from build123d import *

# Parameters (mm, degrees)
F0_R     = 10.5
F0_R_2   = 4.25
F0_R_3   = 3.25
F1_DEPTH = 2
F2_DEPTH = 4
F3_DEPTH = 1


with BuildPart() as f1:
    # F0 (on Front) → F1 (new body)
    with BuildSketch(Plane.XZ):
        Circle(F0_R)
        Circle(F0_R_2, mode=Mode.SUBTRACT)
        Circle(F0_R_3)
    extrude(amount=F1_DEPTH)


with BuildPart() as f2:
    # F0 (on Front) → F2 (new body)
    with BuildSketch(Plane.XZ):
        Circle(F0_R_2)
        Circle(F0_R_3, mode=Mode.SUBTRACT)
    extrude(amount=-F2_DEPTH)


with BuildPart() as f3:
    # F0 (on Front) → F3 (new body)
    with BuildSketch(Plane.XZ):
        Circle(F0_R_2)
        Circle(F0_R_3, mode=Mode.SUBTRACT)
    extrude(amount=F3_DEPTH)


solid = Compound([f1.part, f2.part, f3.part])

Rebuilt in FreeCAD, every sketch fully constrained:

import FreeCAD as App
import Part
import Sketcher

doc = App.newDocument("Part")
params = doc.addObject("Spreadsheet::Sheet", "Params")
for row, (alias, value) in enumerate([
    ("sketch1_diameter", "21 mm"),
    ("sketch1_diameter2", "8.5 mm"),
    ("sketch1_diameter3", "6.5 mm"),
    ("pad1_length", "2 mm"),
    ("sketch2_diameter", "8.5 mm"),
    ("sketch2_diameter2", "6.5 mm"),
    ("pad2_length", "4 mm"),
    ("sketch3_diameter", "8.5 mm"),
    ("sketch3_diameter2", "6.5 mm"),
    ("pad3_length", "1 mm"),
], start=1):
    params.set(f"A{row}", alias)
    params.set(f"B{row}", "=" + value)
    params.setAlias(f"B{row}", alias)

body = doc.addObject("PartDesign::Body", "Body")
body.AllowCompound = True

sketch1 = body.newObject("Sketcher::SketchObject", "Sketch")
sketch1.AttachmentSupport = (doc.getObject("XZ_Plane"), [""])
sketch1.MapMode = "FlatFace"
sketch1.addGeometry(Part.Circle(App.Vector(0, 0, 0), App.Vector(0, 0, 1), 10.5), False)
sketch1.addGeometry(Part.Circle(App.Vector(0, 0, 0), App.Vector(0, 0, 1), 4.2), False)
sketch1.addGeometry(Part.Circle(App.Vector(0, 0, 0), App.Vector(0, 0, 1), 3.2), False)
sketch1.addConstraint(Sketcher.Constraint("Coincident", 0, 3, -1, 1))
sketch1.addConstraint(Sketcher.Constraint("Coincident", 1, 3, -1, 1))
sketch1.addConstraint(Sketcher.Constraint("Coincident", 2, 3, -1, 1))
sketch1.addConstraint(Sketcher.Constraint("Diameter", 0, 21.0))
sketch1.addConstraint(Sketcher.Constraint("Diameter", 1, 8.5))
sketch1.addConstraint(Sketcher.Constraint("Diameter", 2, 6.5))
sketch1.setExpression("Constraints[3]", "Params.sketch1_diameter")
sketch1.setExpression("Constraints[4]", "Params.sketch1_diameter2")
sketch1.setExpression("Constraints[5]", "Params.sketch1_diameter3")
pad1 = body.newObject("PartDesign::Pad", "Pad")
pad1.Profile = sketch1
pad1.setExpression("Length", "Params.pad1_length")
body2 = doc.addObject("PartDesign::Body", "Body001")

sketch2 = body2.newObject("Sketcher::SketchObject", "Sketch001")
sketch2.AttachmentSupport = (doc.getObject("XZ_Plane001"), [""])
sketch2.MapMode = "FlatFace"
sketch2.addGeometry(Part.Circle(App.Vector(0, 0, 0), App.Vector(0, 0, 1), 4.2), False)
sketch2.addGeometry(Part.Circle(App.Vector(0, 0, 0), App.Vector(0, 0, 1), 3.2), False)
sketch2.addConstraint(Sketcher.Constraint("Coincident", 0, 3, -1, 1))
sketch2.addConstraint(Sketcher.Constraint("Coincident", 1, 3, -1, 1))
sketch2.addConstraint(Sketcher.Constraint("Diameter", 0, 8.5))
sketch2.addConstraint(Sketcher.Constraint("Diameter", 1, 6.5))
sketch2.setExpression("Constraints[2]", "Params.sketch2_diameter")
sketch2.setExpression("Constraints[3]", "Params.sketch2_diameter2")
pad2 = body2.newObject("PartDesign::Pad", "Pad001")
pad2.Profile = sketch2
pad2.setExpression("Length", "Params.pad2_length")
pad2.Reversed = True
body3 = doc.addObject("PartDesign::Body", "Body002")

sketch3 = body3.newObject("Sketcher::SketchObject", "Sketch002")
sketch3.AttachmentSupport = (doc.getObject("XZ_Plane002"), [""])
sketch3.MapMode = "FlatFace"
sketch3.addGeometry(Part.Circle(App.Vector(0, 0, 0), App.Vector(0, 0, 1), 4.2), False)
sketch3.addGeometry(Part.Circle(App.Vector(0, 0, 0), App.Vector(0, 0, 1), 3.2), False)
sketch3.addConstraint(Sketcher.Constraint("Coincident", 0, 3, -1, 1))
sketch3.addConstraint(Sketcher.Constraint("Coincident", 1, 3, -1, 1))
sketch3.addConstraint(Sketcher.Constraint("Diameter", 0, 8.5))
sketch3.addConstraint(Sketcher.Constraint("Diameter", 1, 6.5))
sketch3.setExpression("Constraints[2]", "Params.sketch3_diameter")
sketch3.setExpression("Constraints[3]", "Params.sketch3_diameter2")
pad3 = body3.newObject("PartDesign::Pad", "Pad002")
pad3.Profile = sketch3
pad3.setExpression("Length", "Params.pad3_length")

doc.recompute()
